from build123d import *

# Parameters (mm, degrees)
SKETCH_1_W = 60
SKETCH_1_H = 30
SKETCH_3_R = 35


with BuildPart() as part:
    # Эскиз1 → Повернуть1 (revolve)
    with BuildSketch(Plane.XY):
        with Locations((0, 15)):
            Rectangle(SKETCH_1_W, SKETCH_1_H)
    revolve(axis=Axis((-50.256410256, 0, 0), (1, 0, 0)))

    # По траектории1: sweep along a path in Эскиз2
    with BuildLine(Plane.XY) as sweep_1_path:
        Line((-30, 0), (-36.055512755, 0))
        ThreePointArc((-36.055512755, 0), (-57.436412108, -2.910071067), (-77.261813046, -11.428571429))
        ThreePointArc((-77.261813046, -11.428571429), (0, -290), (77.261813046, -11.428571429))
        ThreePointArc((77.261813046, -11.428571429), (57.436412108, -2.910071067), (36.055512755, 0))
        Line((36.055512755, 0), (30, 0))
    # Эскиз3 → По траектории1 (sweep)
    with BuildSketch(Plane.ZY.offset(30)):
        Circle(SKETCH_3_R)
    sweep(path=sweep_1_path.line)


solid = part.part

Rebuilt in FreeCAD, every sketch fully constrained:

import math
import FreeCAD as App
import Part
import Sketcher
Q = App.Units.Quantity


def add_polygon(sketch, points):
    """Adds a closed chain of lines whose ends are joined by coincident constraints."""
    first, n = sketch.GeometryCount, len(points)
    for a, b in zip(points, points[1:] + points[:1]):
        sketch.addGeometry(Part.LineSegment(App.Vector(*a, 0), App.Vector(*b, 0)), False)
    for i in range(n):
        sketch.addConstraint(Sketcher.Constraint("Coincident", first + i, 2, first + (i + 1) % n, 1))

doc = App.newDocument("Part")
body = doc.addObject("PartDesign::Body", "Body")

# Sketch on XY plane
sketch1 = body.newObject("Sketcher::SketchObject", "Sketch")
sketch1.AttachmentSupport = (doc.getObject("XY_Plane"), [""])
sketch1.MapMode = "FlatFace"
add_polygon(sketch1, [(-30, 30), (-30, 0), (30, 0), (30, 30)])  # lines 0-3
sketch1.addConstraint(Sketcher.Constraint("Vertical", 0))
sketch1.addConstraint(Sketcher.Constraint("Horizontal", 1))
sketch1.addConstraint(Sketcher.Constraint("Vertical", 2))
sketch1.addConstraint(Sketcher.Constraint("Horizontal", 3))
sketch1.addConstraint(Sketcher.Constraint("Symmetric", 0, 2, 1, 2, -1, 1))
sketch1.addConstraint(Sketcher.Constraint("DistanceX", 1, 1, 1, 2, Q("60 mm")))
sketch1.addConstraint(Sketcher.Constraint("DistanceY", 0, 2, 0, 1, Q("30 mm")))
revolution = body.newObject("PartDesign::Revolution", "Revolution")
revolution.Profile = sketch1
revolution.ReferenceAxis = (sketch1, ["H_Axis"])
revolution.Angle = 360

# Sketch on YZ plane
sketch2 = body.newObject("Sketcher::SketchObject", "Sketch001")
sketch2.AttachmentSupport = (doc.getObject("YZ_Plane"), [""])
sketch2.MapMode = "FlatFace"
sketch2.AttachmentOffset = App.Placement(App.Vector(0, 0, -30), App.Rotation())
sketch2.addGeometry(Part.Circle(App.Vector(0, 0, 0), App.Vector(0, 0, 1), 35), False)
sketch2.addConstraint(Sketcher.Constraint("Coincident", 0, 3, -1, 1))
sketch2.addConstraint(Sketcher.Constraint("Diameter", 0, Q("70 mm")))

# Sketch on XY plane
sketch3 = body.newObject("Sketcher::SketchObject", "Sketch002")
sketch3.AttachmentSupport = (doc.getObject("XY_Plane"), [""])
sketch3.MapMode = "FlatFace"
sketch3.addGeometry(Part.LineSegment(App.Vector(-30, 0, 0), App.Vector(-36, 0, 0)), False)
sketch3.addGeometry(Part.ArcOfCircle(Part.Circle(App.Vector(-36, -80, 0), App.Vector(0, 0, 1), 80), math.radians(90), math.radians(121)), False)
sketch3.addGeometry(Part.ArcOfCircle(Part.Circle(App.Vector(0, -140, 0), App.Vector(0, 0, 1), 150), math.radians(121), math.radians(419)), False)
sketch3.addGeometry(Part.ArcOfCircle(Part.Circle(App.Vector(36, -80, 0), App.Vector(0, 0, 1), 80), math.radians(59), math.radians(90)), False)
sketch3.addGeometry(Part.LineSegment(App.Vector(36, 0, 0), App.Vector(30, 0, 0)), False)
sketch3.addConstraint(Sketcher.Constraint("Tangent", 0, 2, 1, 1))
sketch3.addConstraint(Sketcher.Constraint("Tangent", 1, 2, 2, 1))
sketch3.addConstraint(Sketcher.Constraint("Tangent", 2, 2, 3, 1))
sketch3.addConstraint(Sketcher.Constraint("Tangent", 3, 2, 4, 1))
sketch3.addConstraint(Sketcher.Constraint("Horizontal", 0))
sketch3.addConstraint(Sketcher.Constraint("Horizontal", 4))
sketch3.addConstraint(Sketcher.Constraint("Equal", 1, 3))
sketch3.addConstraint(Sketcher.Constraint("Symmetric", 0, 2, 3, 2, -1, 1))
sketch3.addConstraint(Sketcher.Constraint("Symmetric", 0, 1, 4, 2, -2))
sketch3.addConstraint(Sketcher.Constraint("Radius", 1, Q("80 mm")))
sketch3.addConstraint(Sketcher.Constraint("Radius", 2, Q("150 mm")))
sketch3.addConstraint(Sketcher.Constraint("DistanceY", 2, 3, -1, 1, Q("140 mm")))
sketch3.addConstraint(Sketcher.Constraint("DistanceX", 0, 1, -1, 1, Q("30 mm")))
doc.recompute()

additivepipe = body.newObject("PartDesign::AdditivePipe", "AdditivePipe")
additivepipe.Profile = sketch2
additivepipe.Spine = (sketch3, ["Edge1", "Edge2", "Edge3", "Edge4", "Edge5"])

doc.recompute()
